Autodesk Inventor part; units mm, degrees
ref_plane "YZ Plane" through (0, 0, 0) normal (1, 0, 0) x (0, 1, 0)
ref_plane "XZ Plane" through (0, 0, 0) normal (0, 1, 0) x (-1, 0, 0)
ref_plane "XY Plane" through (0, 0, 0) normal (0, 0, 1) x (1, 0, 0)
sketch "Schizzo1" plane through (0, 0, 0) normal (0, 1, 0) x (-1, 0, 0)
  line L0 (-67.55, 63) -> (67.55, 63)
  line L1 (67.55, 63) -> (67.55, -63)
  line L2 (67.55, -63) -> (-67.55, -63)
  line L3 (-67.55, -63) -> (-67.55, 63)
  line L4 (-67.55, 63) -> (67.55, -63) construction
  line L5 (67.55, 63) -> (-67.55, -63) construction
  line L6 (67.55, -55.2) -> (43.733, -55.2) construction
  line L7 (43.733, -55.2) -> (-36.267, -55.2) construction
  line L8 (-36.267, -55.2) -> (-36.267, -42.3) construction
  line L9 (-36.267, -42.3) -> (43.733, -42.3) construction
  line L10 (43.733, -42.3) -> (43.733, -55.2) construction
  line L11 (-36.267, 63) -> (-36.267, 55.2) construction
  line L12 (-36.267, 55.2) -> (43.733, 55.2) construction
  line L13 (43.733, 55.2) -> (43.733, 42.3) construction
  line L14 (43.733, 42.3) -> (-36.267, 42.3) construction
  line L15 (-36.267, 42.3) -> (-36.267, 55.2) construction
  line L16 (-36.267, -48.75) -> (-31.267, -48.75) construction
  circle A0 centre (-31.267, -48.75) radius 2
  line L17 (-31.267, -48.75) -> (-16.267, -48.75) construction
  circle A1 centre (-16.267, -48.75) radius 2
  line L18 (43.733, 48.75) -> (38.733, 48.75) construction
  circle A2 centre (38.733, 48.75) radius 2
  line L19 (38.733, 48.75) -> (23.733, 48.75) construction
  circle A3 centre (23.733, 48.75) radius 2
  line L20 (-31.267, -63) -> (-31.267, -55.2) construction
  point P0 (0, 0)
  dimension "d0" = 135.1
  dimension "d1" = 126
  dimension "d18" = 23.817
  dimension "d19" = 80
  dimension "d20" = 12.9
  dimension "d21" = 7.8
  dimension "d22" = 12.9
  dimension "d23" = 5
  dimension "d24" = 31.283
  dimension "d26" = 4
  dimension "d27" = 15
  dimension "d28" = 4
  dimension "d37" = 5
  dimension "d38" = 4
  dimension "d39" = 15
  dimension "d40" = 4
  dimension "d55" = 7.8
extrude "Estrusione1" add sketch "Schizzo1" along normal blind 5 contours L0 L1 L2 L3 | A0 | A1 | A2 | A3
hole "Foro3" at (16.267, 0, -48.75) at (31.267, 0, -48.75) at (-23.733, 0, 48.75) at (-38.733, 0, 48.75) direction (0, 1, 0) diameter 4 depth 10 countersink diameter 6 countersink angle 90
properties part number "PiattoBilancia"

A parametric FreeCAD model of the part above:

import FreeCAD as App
import Part
import Sketcher
Q = App.Units.Quantity


def add_polygon(sketch, points):
    """Adds a closed chain of lines whose ends are joined by coincident constraints."""
    first, n = sketch.GeometryCount, len(points)
    for a, b in zip(points, points[1:] + points[:1]):
        sketch.addGeometry(Part.LineSegment(App.Vector(*a, 0), App.Vector(*b, 0)), False)
    for i in range(n):
        sketch.addConstraint(Sketcher.Constraint("Coincident", first + i, 2, first + (i + 1) % n, 1))

doc = App.newDocument("Part")
body = doc.addObject("PartDesign::Body", "Body")

# Sketch on XZ plane
sketch1 = body.newObject("Sketcher::SketchObject", "Sketch")
sketch1.AttachmentSupport = (doc.getObject("XZ_Plane"), [""])
sketch1.MapMode = "FlatFace"
add_polygon(sketch1, [(-68, 63), (68, 63), (68, -63), (-68, -63)])  # lines 0-3
sketch1.addConstraint([
    Sketcher.Constraint("Horizontal", 0),
    Sketcher.Constraint("Vertical", 1),
    Sketcher.Constraint("Horizontal", 2),
    Sketcher.Constraint("Vertical", 3),
    Sketcher.Constraint("Symmetric", 0, 2, 2, 2, -1, 1),
    Sketcher.Constraint("DistanceY", 1, 2, 1, 1, Q("126 mm")),
    Sketcher.Constraint("DistanceX", 0, 1, 0, 2, Q("135.1 mm")),
])
pad1 = body.newObject("PartDesign::Pad", "Pad")
pad1.Profile = sketch1
pad1.Length = 5
pad1.Reversed = True

# Sketch on XZ plane
sketch2 = body.newObject("Sketcher::SketchObject", "Sketch001")
sketch2.AttachmentSupport = (doc.getObject("XZ_Plane"), [""])
sketch2.MapMode = "FlatFace"
sketch2.addGeometry([
    Part.Circle(App.Vector(16.3, -48.8, 0), App.Vector(0, 0, 1), 2),
    Part.Circle(App.Vector(31.3, -48.8, 0), App.Vector(0, 0, 1), 2),
    Part.Circle(App.Vector(-23.7, 48.8, 0), App.Vector(0, 0, 1), 2),
    Part.Circle(App.Vector(-38.7, 48.8, 0), App.Vector(0, 0, 1), 2),
], False)
sketch2.addConstraint([
    Sketcher.Constraint("Equal", 0, 1),
    Sketcher.Constraint("Equal", 1, 2),
    Sketcher.Constraint("Equal", 2, 3),
    Sketcher.Constraint("Horizontal", 0, 3, 1, 3),
    Sketcher.Constraint("Horizontal", 2, 3, 3, 3),
    Sketcher.Constraint("Diameter", 0, Q("4 mm")),
    Sketcher.Constraint("DistanceX", 0, 3, 1, 3, Q("15 mm")),
    Sketcher.Constraint("DistanceX", 2, 3, 0, 3, Q("40 mm")),
    Sketcher.Constraint("DistanceX", 3, 3, 2, 3, Q("15 mm")),
    Sketcher.Constraint("DistanceY", 0, 3, 2, 3, Q("97.5 mm")),
    Sketcher.Constraint("DistanceY", 0, 3, -1, 1, Q("48.75 mm")),
    Sketcher.Constraint("DistanceX", -1, 1, 0, 3, Q("16.267 mm")),
])
doc.recompute()
hole = body.newObject("PartDesign::Hole", "Hole")
hole.Profile = sketch2
hole.ThreadType = "None"
hole.Diameter = 4
hole.DepthType = "Dimension"
hole.Depth = 10
hole.DrillPoint = "Flat"
hole.HoleCutType = "Countersink"
hole.HoleCutDiameter = 6
hole.HoleCutCountersinkAngle = 90

doc.recompute()
